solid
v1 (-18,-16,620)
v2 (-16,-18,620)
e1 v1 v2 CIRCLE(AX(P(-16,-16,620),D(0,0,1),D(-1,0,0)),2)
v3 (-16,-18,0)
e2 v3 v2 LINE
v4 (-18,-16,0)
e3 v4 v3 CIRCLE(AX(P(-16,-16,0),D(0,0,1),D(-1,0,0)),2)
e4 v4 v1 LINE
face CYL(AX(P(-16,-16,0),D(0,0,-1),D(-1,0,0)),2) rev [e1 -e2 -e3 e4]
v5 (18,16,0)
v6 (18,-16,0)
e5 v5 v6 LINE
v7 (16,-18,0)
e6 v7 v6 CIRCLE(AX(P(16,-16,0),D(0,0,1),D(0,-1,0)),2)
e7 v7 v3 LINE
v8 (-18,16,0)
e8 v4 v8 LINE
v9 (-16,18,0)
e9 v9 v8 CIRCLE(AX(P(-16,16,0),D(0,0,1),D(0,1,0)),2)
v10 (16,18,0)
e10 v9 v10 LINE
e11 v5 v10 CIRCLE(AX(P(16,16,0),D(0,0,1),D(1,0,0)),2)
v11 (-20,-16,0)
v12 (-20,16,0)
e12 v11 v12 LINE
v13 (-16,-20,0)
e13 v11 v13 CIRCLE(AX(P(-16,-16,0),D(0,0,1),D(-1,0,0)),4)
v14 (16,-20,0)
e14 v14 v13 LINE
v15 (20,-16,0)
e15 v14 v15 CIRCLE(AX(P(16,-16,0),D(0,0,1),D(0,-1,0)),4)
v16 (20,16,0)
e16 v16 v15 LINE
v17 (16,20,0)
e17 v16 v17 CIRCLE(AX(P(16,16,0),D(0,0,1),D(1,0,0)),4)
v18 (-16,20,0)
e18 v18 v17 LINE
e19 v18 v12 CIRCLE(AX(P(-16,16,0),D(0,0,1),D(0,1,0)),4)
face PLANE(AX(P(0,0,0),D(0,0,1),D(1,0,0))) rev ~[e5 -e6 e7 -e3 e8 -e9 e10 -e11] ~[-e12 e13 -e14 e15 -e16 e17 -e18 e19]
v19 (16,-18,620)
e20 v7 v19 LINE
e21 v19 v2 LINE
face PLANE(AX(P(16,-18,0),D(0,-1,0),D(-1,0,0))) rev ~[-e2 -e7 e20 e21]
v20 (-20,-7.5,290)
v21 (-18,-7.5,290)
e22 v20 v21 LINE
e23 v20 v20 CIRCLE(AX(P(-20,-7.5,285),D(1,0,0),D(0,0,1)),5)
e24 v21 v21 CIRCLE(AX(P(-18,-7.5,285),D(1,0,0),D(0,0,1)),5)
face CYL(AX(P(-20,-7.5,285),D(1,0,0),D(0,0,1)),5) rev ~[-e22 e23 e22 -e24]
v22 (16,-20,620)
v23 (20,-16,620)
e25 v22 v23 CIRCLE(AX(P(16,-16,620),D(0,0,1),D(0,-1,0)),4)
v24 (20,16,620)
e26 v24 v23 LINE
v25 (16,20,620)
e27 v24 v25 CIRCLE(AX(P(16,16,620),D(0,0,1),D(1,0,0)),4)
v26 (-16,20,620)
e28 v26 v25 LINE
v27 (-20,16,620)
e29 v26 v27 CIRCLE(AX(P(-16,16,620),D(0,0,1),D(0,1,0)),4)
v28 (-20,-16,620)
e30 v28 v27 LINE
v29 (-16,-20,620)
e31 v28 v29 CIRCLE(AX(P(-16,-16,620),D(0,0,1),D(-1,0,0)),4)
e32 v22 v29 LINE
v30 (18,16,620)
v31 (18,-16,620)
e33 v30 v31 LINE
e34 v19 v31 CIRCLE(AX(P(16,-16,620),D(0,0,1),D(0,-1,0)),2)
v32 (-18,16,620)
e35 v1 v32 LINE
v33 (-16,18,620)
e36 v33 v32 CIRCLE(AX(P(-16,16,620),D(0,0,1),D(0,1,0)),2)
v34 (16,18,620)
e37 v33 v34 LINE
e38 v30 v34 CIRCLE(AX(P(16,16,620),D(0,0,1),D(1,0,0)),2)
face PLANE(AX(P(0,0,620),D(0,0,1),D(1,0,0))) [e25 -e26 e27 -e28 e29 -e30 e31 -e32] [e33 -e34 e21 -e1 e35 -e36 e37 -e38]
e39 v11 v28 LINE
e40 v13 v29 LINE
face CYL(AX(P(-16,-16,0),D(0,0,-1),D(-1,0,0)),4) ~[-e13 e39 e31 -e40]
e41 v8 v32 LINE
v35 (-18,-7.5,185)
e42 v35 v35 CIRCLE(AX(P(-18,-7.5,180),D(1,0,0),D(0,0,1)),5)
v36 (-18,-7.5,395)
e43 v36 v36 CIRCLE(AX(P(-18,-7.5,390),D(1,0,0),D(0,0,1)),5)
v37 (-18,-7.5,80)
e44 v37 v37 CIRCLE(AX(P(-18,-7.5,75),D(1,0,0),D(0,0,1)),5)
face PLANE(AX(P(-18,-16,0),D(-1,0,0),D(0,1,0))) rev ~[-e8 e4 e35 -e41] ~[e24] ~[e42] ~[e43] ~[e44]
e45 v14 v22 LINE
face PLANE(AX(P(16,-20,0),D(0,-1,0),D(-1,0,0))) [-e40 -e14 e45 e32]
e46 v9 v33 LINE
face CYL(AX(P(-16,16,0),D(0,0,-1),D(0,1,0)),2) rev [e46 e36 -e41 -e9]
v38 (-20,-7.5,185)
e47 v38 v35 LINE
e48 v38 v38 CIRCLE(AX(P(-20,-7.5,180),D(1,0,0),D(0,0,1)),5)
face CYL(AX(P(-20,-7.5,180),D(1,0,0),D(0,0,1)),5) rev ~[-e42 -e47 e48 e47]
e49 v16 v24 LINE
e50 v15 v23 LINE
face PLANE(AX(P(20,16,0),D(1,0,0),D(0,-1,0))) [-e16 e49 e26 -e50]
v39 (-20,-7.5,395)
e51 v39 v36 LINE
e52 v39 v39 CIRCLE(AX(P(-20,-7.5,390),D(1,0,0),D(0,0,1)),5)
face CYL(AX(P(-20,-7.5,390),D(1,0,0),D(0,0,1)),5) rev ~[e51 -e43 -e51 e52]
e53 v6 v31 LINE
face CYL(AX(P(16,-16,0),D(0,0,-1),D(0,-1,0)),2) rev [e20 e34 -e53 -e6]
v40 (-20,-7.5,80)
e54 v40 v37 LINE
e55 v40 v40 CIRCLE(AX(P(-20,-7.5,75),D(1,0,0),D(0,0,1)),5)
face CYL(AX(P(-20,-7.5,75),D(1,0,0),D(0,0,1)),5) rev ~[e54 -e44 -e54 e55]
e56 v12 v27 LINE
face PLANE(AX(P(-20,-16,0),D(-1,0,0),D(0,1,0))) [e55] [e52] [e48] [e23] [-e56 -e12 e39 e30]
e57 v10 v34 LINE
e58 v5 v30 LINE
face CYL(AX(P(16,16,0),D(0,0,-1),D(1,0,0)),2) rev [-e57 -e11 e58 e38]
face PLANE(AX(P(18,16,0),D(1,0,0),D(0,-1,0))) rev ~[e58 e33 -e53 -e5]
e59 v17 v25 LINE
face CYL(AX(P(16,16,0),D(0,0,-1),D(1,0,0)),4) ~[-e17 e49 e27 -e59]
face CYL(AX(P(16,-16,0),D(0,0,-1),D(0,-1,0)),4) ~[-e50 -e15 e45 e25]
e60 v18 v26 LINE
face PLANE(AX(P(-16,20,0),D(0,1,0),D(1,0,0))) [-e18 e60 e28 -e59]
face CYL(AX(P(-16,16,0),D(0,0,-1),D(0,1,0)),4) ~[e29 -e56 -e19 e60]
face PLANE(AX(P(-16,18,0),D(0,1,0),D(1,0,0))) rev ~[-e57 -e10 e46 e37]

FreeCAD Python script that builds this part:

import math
import FreeCAD as App
import Part
import Sketcher
from FreeCAD import Vector
Q = App.Units.Quantity

doc = App.newDocument("Part")
params = doc.addObject("Spreadsheet::Sheet", "Params")
for row, (alias, value) in enumerate([
    ("sketch1_radius", "4 mm"),
    ("sketch1_radius2", "2 mm"),
    ("pad1_length", "620 mm"),
    ("sketch2_diameter", "10 mm"),
    ("hole_diameter", "10 mm"),
    ("hole_depth", "5 mm"),
], start=1):
    params.set(f"A{row}", alias)
    params.set(f"B{row}", "=" + value)
    params.setAlias(f"B{row}", alias)

body = doc.addObject("PartDesign::Body", "Body")

# Sketch on XY plane
sketch1 = doc.addObject("Sketcher::SketchObject", "Sketch")
body.addObject(sketch1)
sketch1.AttachmentSupport = (doc.XY_Plane, [""])
sketch1.MapMode = "FlatFace"
sketch1.addGeometry([
    Part.LineSegment(Vector(-20, 16, 0), Vector(-20, -16, 0)),  # 0
    Part.ArcOfCircle(Part.Circle(Vector(-16, -16, 0), Vector(0, 0, 1), 4), math.radians(180), math.radians(270)),  # 1
    Part.LineSegment(Vector(-16, -20, 0), Vector(16, -20, 0)),  # 2
    Part.ArcOfCircle(Part.Circle(Vector(16, -16, 0), Vector(0, 0, 1), 4), math.radians(-90), math.radians(0)),  # 3
    Part.LineSegment(Vector(20, -16, 0), Vector(20, 16, 0)),  # 4
    Part.ArcOfCircle(Part.Circle(Vector(16, 16, 0), Vector(0, 0, 1), 4), math.radians(0), math.radians(90)),  # 5
    Part.LineSegment(Vector(16, 20, 0), Vector(-16, 20, 0)),  # 6
    Part.ArcOfCircle(Part.Circle(Vector(-16, 16, 0), Vector(0, 0, 1), 4), math.radians(90), math.radians(180)),  # 7
    Part.ArcOfCircle(Part.Circle(Vector(-16, 16, 0), Vector(0, 0, 1), 2), math.radians(90), math.radians(180)),  # 8
    Part.LineSegment(Vector(-16, 18, 0), Vector(16, 18, 0)),  # 9
    Part.ArcOfCircle(Part.Circle(Vector(16, 16, 0), Vector(0, 0, 1), 2), math.radians(0), math.radians(90)),  # 10
    Part.LineSegment(Vector(18, 16, 0), Vector(18, -16, 0)),  # 11
    Part.ArcOfCircle(Part.Circle(Vector(16, -16, 0), Vector(0, 0, 1), 2), math.radians(-90), math.radians(0)),  # 12
    Part.LineSegment(Vector(16, -18, 0), Vector(-16, -18, 0)),  # 13
    Part.ArcOfCircle(Part.Circle(Vector(-16, -16, 0), Vector(0, 0, 1), 2), math.radians(180), math.radians(270)),  # 14
    Part.LineSegment(Vector(-18, -16, 0), Vector(-18, 16, 0)),  # 15
], False)
sketch1.addConstraint([
    Sketcher.Constraint("Tangent", 0, 2, 1, 1),
    Sketcher.Constraint("Tangent", 1, 2, 2, 1),
    Sketcher.Constraint("Tangent", 2, 2, 3, 1),
    Sketcher.Constraint("Tangent", 3, 2, 4, 1),
    Sketcher.Constraint("Tangent", 4, 2, 5, 1),
    Sketcher.Constraint("Tangent", 5, 2, 6, 1),
    Sketcher.Constraint("Tangent", 6, 2, 7, 1),
    Sketcher.Constraint("Tangent", 7, 2, 0, 1),
    Sketcher.Constraint("Tangent", 8, 1, 9, 1),
    Sketcher.Constraint("Tangent", 9, 2, 10, 2),
    Sketcher.Constraint("Tangent", 10, 1, 11, 1),
    Sketcher.Constraint("Tangent", 11, 2, 12, 2),
    Sketcher.Constraint("Tangent", 12, 1, 13, 1),
    Sketcher.Constraint("Tangent", 13, 2, 14, 2),
    Sketcher.Constraint("Tangent", 14, 1, 15, 1),
    Sketcher.Constraint("Tangent", 15, 2, 8, 2),
    Sketcher.Constraint("Vertical", 0),
    Sketcher.Constraint("Horizontal", 2),
    Sketcher.Constraint("Vertical", 4),
    Sketcher.Constraint("Horizontal", 6),
    Sketcher.Constraint("Horizontal", 9),
    Sketcher.Constraint("Vertical", 11),
    Sketcher.Constraint("Horizontal", 13),
    Sketcher.Constraint("Vertical", 15),
    Sketcher.Constraint("Coincident", 8, 3, 7, 3),
    Sketcher.Constraint("Coincident", 10, 3, 5, 3),
    Sketcher.Constraint("Coincident", 12, 3, 3, 3),
    Sketcher.Constraint("Equal", 1, 3),
    Sketcher.Constraint("Equal", 3, 5),
    Sketcher.Constraint("Equal", 5, 7),
    Sketcher.Constraint("Equal", 12, 14),
    Sketcher.Constraint("Symmetric", 1, 3, 5, 3, -1, 1),
    Sketcher.Constraint("Equal", 13, 0),
    Sketcher.Constraint("Radius", 1, Q("4 mm")),
    Sketcher.Constraint("Radius", 8, Q("2 mm")),
    Sketcher.Constraint("DistanceX", 0, 2, -1, 1, Q("20 mm")),
])
sketch1.setExpression("Constraints[33]", "Params.sketch1_radius")
sketch1.setExpression("Constraints[34]", "Params.sketch1_radius2")
pad1 = doc.addObject("PartDesign::Pad", "Pad")
body.addObject(pad1)
pad1.Profile = sketch1
pad1.setExpression("Length", "Params.pad1_length")

# Sketch on YZ plane
sketch2 = doc.addObject("Sketcher::SketchObject", "Sketch001")
body.addObject(sketch2)
sketch2.AttachmentSupport = (doc.YZ_Plane, [""])
sketch2.MapMode = "FlatFace"
sketch2.AttachmentOffset = App.Placement(Vector(0, 0, -20), App.Rotation())
sketch2.addGeometry([
    Part.Circle(Vector(-8, 75, 0), Vector(0, 0, 1), 5),
    Part.Circle(Vector(-8, 285, 0), Vector(0, 0, 1), 5),
    Part.Circle(Vector(-8, 390, 0), Vector(0, 0, 1), 5),
    Part.Circle(Vector(-8, 180, 0), Vector(0, 0, 1), 5),
], False)
sketch2.addConstraint([
    Sketcher.Constraint("Equal", 0, 1),
    Sketcher.Constraint("Equal", 1, 2),
    Sketcher.Constraint("Equal", 2, 3),
    Sketcher.Constraint("Vertical", 0, 3, 1, 3),
    Sketcher.Constraint("Vertical", 1, 3, 2, 3),
    Sketcher.Constraint("Vertical", 2, 3, 3, 3),
    Sketcher.Constraint("Diameter", 0, Q("10 mm")),
    Sketcher.Constraint("DistanceY", -1, 1, 0, 3, Q("75 mm")),
    Sketcher.Constraint("DistanceY", -1, 1, 1, 3, Q("285 mm")),
    Sketcher.Constraint("DistanceY", -1, 1, 2, 3, Q("390 mm")),
    Sketcher.Constraint("DistanceY", -1, 1, 3, 3, Q("180 mm")),
    Sketcher.Constraint("DistanceX", 0, 3, -1, 1, Q("7.5 mm")),
])
sketch2.setExpression("Constraints[6]", "Params.sketch2_diameter")
doc.recompute()
hole = doc.addObject("PartDesign::Hole", "Hole")
body.addObject(hole)
hole.Profile = sketch2
hole.ThreadType = "None"
hole.setExpression("Diameter", "Params.hole_diameter")
hole.DepthType = "Dimension"
hole.setExpression("Depth", "Params.hole_depth")
hole.DrillPoint = "Angled"
hole.DrillPointAngle = 118
hole.Reversed = True

doc.recompute()
